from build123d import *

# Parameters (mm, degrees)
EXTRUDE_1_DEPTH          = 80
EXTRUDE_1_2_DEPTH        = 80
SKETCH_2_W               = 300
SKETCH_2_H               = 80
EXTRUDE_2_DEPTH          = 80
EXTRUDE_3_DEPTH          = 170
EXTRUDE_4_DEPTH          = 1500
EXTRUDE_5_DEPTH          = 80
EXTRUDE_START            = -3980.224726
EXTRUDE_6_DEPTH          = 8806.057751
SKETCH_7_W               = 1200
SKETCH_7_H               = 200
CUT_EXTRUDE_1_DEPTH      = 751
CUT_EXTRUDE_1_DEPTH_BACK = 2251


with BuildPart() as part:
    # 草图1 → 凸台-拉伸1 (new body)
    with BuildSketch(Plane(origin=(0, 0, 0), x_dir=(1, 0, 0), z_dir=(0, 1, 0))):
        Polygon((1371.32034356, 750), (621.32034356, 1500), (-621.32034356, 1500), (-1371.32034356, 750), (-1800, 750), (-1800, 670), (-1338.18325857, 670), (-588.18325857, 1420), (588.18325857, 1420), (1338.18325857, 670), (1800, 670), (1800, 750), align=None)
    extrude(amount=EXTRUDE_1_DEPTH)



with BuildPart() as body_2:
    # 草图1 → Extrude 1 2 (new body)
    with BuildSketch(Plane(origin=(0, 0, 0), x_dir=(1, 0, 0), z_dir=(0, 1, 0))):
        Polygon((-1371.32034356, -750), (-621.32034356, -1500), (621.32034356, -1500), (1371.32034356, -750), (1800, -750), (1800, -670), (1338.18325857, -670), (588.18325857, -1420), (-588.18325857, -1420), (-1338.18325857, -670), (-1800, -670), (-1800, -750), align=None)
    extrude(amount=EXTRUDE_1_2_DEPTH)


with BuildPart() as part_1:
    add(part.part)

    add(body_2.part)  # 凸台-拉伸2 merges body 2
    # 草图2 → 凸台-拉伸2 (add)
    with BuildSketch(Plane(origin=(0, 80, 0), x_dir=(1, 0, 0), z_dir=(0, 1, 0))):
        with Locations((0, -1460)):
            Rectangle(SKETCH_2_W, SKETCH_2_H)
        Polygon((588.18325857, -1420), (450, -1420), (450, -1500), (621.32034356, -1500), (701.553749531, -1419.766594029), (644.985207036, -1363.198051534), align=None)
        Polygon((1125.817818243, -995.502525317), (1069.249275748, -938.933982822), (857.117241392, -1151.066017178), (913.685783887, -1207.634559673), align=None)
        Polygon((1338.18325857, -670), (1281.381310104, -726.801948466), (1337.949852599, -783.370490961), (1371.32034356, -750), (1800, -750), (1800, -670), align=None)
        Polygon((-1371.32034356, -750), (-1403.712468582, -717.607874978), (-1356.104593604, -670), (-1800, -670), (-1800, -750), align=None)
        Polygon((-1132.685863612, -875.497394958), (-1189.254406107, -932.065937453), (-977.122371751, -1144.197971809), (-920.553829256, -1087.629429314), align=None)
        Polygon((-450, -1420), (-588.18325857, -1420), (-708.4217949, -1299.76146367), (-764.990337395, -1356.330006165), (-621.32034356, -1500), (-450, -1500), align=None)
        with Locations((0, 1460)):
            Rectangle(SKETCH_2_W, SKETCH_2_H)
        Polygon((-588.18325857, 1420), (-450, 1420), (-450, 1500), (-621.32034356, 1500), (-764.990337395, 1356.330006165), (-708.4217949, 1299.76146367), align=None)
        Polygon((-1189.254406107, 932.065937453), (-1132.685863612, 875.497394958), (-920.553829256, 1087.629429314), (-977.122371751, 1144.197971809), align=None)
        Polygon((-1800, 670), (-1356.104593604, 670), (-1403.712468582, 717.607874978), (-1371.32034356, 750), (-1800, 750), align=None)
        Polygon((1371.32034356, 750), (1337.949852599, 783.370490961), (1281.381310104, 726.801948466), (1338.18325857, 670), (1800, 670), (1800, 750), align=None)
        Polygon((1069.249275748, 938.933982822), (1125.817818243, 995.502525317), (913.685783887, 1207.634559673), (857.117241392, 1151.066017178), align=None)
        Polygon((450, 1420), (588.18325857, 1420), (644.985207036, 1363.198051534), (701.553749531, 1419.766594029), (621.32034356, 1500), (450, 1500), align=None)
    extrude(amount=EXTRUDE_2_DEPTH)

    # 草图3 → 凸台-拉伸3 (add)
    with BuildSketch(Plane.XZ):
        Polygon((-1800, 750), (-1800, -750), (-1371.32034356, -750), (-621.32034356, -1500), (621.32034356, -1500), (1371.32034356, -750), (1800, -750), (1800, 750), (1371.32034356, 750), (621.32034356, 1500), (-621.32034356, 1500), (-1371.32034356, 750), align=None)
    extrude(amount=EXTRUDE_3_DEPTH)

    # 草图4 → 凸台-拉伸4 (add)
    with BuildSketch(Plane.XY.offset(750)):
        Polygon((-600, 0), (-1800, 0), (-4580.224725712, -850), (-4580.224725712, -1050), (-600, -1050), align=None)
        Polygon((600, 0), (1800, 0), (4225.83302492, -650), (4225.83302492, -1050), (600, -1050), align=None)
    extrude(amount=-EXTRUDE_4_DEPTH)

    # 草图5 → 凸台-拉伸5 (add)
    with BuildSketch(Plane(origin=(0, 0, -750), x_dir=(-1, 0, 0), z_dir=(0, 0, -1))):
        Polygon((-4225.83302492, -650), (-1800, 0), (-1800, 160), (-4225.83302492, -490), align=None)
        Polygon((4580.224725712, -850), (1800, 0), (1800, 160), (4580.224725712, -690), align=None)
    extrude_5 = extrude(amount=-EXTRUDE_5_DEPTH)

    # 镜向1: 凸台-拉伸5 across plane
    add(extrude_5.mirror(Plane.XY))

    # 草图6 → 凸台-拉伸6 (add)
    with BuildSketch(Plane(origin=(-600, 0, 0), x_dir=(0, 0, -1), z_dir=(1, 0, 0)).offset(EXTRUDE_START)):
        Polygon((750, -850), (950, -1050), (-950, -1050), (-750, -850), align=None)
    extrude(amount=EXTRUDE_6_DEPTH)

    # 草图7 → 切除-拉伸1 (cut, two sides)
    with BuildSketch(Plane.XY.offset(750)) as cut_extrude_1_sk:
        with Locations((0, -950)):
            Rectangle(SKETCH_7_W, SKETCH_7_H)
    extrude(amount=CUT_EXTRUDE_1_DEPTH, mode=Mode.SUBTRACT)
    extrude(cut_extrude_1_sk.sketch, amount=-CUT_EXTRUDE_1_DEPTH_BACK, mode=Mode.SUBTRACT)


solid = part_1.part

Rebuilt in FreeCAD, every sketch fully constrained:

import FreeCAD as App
import Part
import Sketcher
from FreeCAD import Vector
Q = App.Units.Quantity

doc = App.newDocument("Part")
body = doc.addObject("PartDesign::Body", "Body")

sketch1 = body.newObject("Sketcher::SketchObject", "Sketch")
sketch1.AttachmentSupport = (doc.getObject("XZ_Plane"), [""])
sketch1.MapMode = "FlatFace"
sketch1.addGeometry(Part.LineSegment(Vector(1371.320344, -750, 0), Vector(621.320344, -1500, 0)), False)
sketch1.addGeometry(Part.LineSegment(Vector(621.320344, -1500, 0), Vector(-621.320344, -1500, 0)), False)
sketch1.addGeometry(Part.LineSegment(Vector(-621.320344, -1500, 0), Vector(-1371.320344, -750, 0)), False)
sketch1.addGeometry(Part.LineSegment(Vector(-1371.320344, -750, 0), Vector(-1800, -750, 0)), False)
sketch1.addGeometry(Part.LineSegment(Vector(-1800, -750, 0), Vector(-1800, -670, 0)), False)
sketch1.addGeometry(Part.LineSegment(Vector(-1800, -670, 0), Vector(-1338.183259, -670, 0)), False)
sketch1.addGeometry(Part.LineSegment(Vector(-1338.183259, -670, 0), Vector(-588.183259, -1420, 0)), False)
sketch1.addGeometry(Part.LineSegment(Vector(-588.183259, -1420, 0), Vector(588.183259, -1420, 0)), False)
sketch1.addGeometry(Part.LineSegment(Vector(588.183259, -1420, 0), Vector(1338.183259, -670, 0)), False)
sketch1.addGeometry(Part.LineSegment(Vector(1338.183259, -670, 0), Vector(1800, -670, 0)), False)
sketch1.addGeometry(Part.LineSegment(Vector(1800, -670, 0), Vector(1800, -750, 0)), False)
sketch1.addGeometry(Part.LineSegment(Vector(1800, -750, 0), Vector(1371.320344, -750, 0)), False)
sketch1.addConstraint(Sketcher.Constraint("Coincident", 0, 2, 1, 1))
sketch1.addConstraint(Sketcher.Constraint("Coincident", 1, 2, 2, 1))
sketch1.addConstraint(Sketcher.Constraint("Coincident", 2, 2, 3, 1))
sketch1.addConstraint(Sketcher.Constraint("Coincident", 3, 2, 4, 1))
sketch1.addConstraint(Sketcher.Constraint("Coincident", 4, 2, 5, 1))
sketch1.addConstraint(Sketcher.Constraint("Coincident", 5, 2, 6, 1))
sketch1.addConstraint(Sketcher.Constraint("Coincident", 6, 2, 7, 1))
sketch1.addConstraint(Sketcher.Constraint("Coincident", 7, 2, 8, 1))
sketch1.addConstraint(Sketcher.Constraint("Coincident", 8, 2, 9, 1))
sketch1.addConstraint(Sketcher.Constraint("Coincident", 9, 2, 10, 1))
sketch1.addConstraint(Sketcher.Constraint("Coincident", 10, 2, 11, 1))
sketch1.addConstraint(Sketcher.Constraint("Coincident", 11, 2, 0, 1))
sketch1.addConstraint(Sketcher.Constraint("Horizontal", 1))
sketch1.addConstraint(Sketcher.Constraint("Horizontal", 3))
sketch1.addConstraint(Sketcher.Constraint("Vertical", 4))
sketch1.addConstraint(Sketcher.Constraint("Horizontal", 5))
sketch1.addConstraint(Sketcher.Constraint("Horizontal", 7))
sketch1.addConstraint(Sketcher.Constraint("Horizontal", 9))
sketch1.addConstraint(Sketcher.Constraint("Vertical", 10))
sketch1.addConstraint(Sketcher.Constraint("Horizontal", 11))
sketch1.addConstraint(Sketcher.Constraint("Symmetric", 5, 2, 8, 2, -2))
sketch1.addConstraint(Sketcher.Constraint("Symmetric", 3, 2, 10, 2, -2))
sketch1.addConstraint(Sketcher.Constraint("Perpendicular", 0, 2))
sketch1.addConstraint(Sketcher.Constraint("Parallel", 2, 6))
sketch1.addConstraint(Sketcher.Constraint("Perpendicular", 6, 8))
sketch1.addConstraint(Sketcher.Constraint("Equal", 3, 11))
sketch1.addConstraint(Sketcher.Constraint("Equal", 0, 2))
sketch1.addConstraint(Sketcher.Constraint("Equal", 2, 6))
sketch1.addConstraint(Sketcher.Constraint("DistanceY", 4, 1, 4, 2, Q("80 mm")))
sketch1.addConstraint(Sketcher.Constraint("DistanceY", 0, 2, -1, 1, Q("1500 mm")))
sketch1.addConstraint(Sketcher.Constraint("DistanceY", 2, 2, -1, 1, Q("750 mm")))
sketch1.addConstraint(Sketcher.Constraint("DistanceX", 3, 2, -1, 1, Q("1800 mm")))
sketch1.addConstraint(Sketcher.Constraint("DistanceX", 5, 1, 5, 2, Q("461.816741 mm")))
sketch1.addConstraint(Sketcher.Constraint("DistanceX", 1, 2, 1, 1, Q("1242.640687 mm")))
pad1 = body.newObject("PartDesign::Pad", "Pad")
pad1.Profile = sketch1
pad1.Length = 80
pad1.Reversed = True
body2 = doc.addObject("PartDesign::Body", "Body001")

sketch2 = body2.newObject("Sketcher::SketchObject", "Sketch001")
sketch2.AttachmentSupport = (doc.getObject("XZ_Plane001"), [""])
sketch2.MapMode = "FlatFace"
sketch2.addGeometry(Part.LineSegment(Vector(-1371.320344, 750, 0), Vector(-621.320344, 1500, 0)), False)
sketch2.addGeometry(Part.LineSegment(Vector(-621.320344, 1500, 0), Vector(621.320344, 1500, 0)), False)
sketch2.addGeometry(Part.LineSegment(Vector(621.320344, 1500, 0), Vector(1371.320344, 750, 0)), False)
sketch2.addGeometry(Part.LineSegment(Vector(1371.320344, 750, 0), Vector(1800, 750, 0)), False)
sketch2.addGeometry(Part.LineSegment(Vector(1800, 750, 0), Vector(1800, 670, 0)), False)
sketch2.addGeometry(Part.LineSegment(Vector(1800, 670, 0), Vector(1338.183259, 670, 0)), False)
sketch2.addGeometry(Part.LineSegment(Vector(1338.183259, 670, 0), Vector(588.183259, 1420, 0)), False)
sketch2.addGeometry(Part.LineSegment(Vector(588.183259, 1420, 0), Vector(-588.183259, 1420, 0)), False)
sketch2.addGeometry(Part.LineSegment(Vector(-588.183259, 1420, 0), Vector(-1338.183259, 670, 0)), False)
sketch2.addGeometry(Part.LineSegment(Vector(-1338.183259, 670, 0), Vector(-1800, 670, 0)), False)
sketch2.addGeometry(Part.LineSegment(Vector(-1800, 670, 0), Vector(-1800, 750, 0)), False)
sketch2.addGeometry(Part.LineSegment(Vector(-1800, 750, 0), Vector(-1371.320344, 750, 0)), False)
sketch2.addConstraint(Sketcher.Constraint("Coincident", 0, 2, 1, 1))
sketch2.addConstraint(Sketcher.Constraint("Coincident", 1, 2, 2, 1))
sketch2.addConstraint(Sketcher.Constraint("Coincident", 2, 2, 3, 1))
sketch2.addConstraint(Sketcher.Constraint("Coincident", 3, 2, 4, 1))
sketch2.addConstraint(Sketcher.Constraint("Coincident", 4, 2, 5, 1))
sketch2.addConstraint(Sketcher.Constraint("Coincident", 5, 2, 6, 1))
sketch2.addConstraint(Sketcher.Constraint("Coincident", 6, 2, 7, 1))
sketch2.addConstraint(Sketcher.Constraint("Coincident", 7, 2, 8, 1))
sketch2.addConstraint(Sketcher.Constraint("Coincident", 8, 2, 9, 1))
sketch2.addConstraint(Sketcher.Constraint("Coincident", 9, 2, 10, 1))
sketch2.addConstraint(Sketcher.Constraint("Coincident", 10, 2, 11, 1))
sketch2.addConstraint(Sketcher.Constraint("Coincident", 11, 2, 0, 1))
sketch2.addConstraint(Sketcher.Constraint("Horizontal", 1))
sketch2.addConstraint(Sketcher.Constraint("Horizontal", 3))
sketch2.addConstraint(Sketcher.Constraint("Vertical", 4))
sketch2.addConstraint(Sketcher.Constraint("Horizontal", 5))
sketch2.addConstraint(Sketcher.Constraint("Horizontal", 7))
sketch2.addConstraint(Sketcher.Constraint("Horizontal", 9))
sketch2.addConstraint(Sketcher.Constraint("Vertical", 10))
sketch2.addConstraint(Sketcher.Constraint("Horizontal", 11))
sketch2.addConstraint(Sketcher.Constraint("Symmetric", 5, 2, 8, 2, -2))
sketch2.addConstraint(Sketcher.Constraint("Symmetric", 3, 2, 10, 2, -2))
sketch2.addConstraint(Sketcher.Constraint("Perpendicular", 0, 2))
sketch2.addConstraint(Sketcher.Constraint("Parallel", 2, 6))
sketch2.addConstraint(Sketcher.Constraint("Perpendicular", 6, 8))
sketch2.addConstraint(Sketcher.Constraint("Equal", 3, 11))
sketch2.addConstraint(Sketcher.Constraint("Equal", 0, 2))
sketch2.addConstraint(Sketcher.Constraint("Equal", 2, 6))
sketch2.addConstraint(Sketcher.Constraint("DistanceY", 4, 2, 4, 1, Q("80 mm")))
sketch2.addConstraint(Sketcher.Constraint("DistanceY", -1, 1, 0, 2, Q("1500 mm")))
sketch2.addConstraint(Sketcher.Constraint("DistanceY", -1, 1, 2, 2, Q("750 mm")))
sketch2.addConstraint(Sketcher.Constraint("DistanceX", -1, 1, 3, 2, Q("1800 mm")))
sketch2.addConstraint(Sketcher.Constraint("DistanceX", 5, 2, 5, 1, Q("461.816741 mm")))
sketch2.addConstraint(Sketcher.Constraint("DistanceX", 1, 1, 1, 2, Q("1242.640687 mm")))
pad2 = body2.newObject("PartDesign::Pad", "Pad001")
pad2.Profile = sketch2
pad2.Length = 80
pad2.Reversed = True
body.AllowCompound = True
doc.recompute()

boolean = body.newObject("PartDesign::Boolean", "Boolean")
boolean.Type = "Fuse"
boolean.addObjects([body2])

sketch3 = body.newObject("Sketcher::SketchObject", "Sketch002")
sketch3.AttachmentSupport = (doc.getObject("XZ_Plane"), [""])
sketch3.MapMode = "FlatFace"
sketch3.AttachmentOffset = App.Placement(Vector(0, 0, -80), App.Rotation())
sketch3.addGeometry(Part.LineSegment(Vector(-150, 1420, 0), Vector(-150, 1500, 0)), False)
sketch3.addGeometry(Part.LineSegment(Vector(-150, 1500, 0), Vector(150, 1500, 0)), False)
sketch3.addGeometry(Part.LineSegment(Vector(150, 1500, 0), Vector(150, 1420, 0)), False)
sketch3.addGeometry(Part.LineSegment(Vector(150, 1420, 0), Vector(-150, 1420, 0)), False)
sketch3.addGeometry(Part.LineSegment(Vector(588.183259, 1420, 0), Vector(450, 1420, 0)), False)
sketch3.addGeometry(Part.LineSegment(Vector(450, 1420, 0), Vector(450, 1500, 0)), False)
sketch3.addGeometry(Part.LineSegment(Vector(450, 1500, 0), Vector(621.320344, 1500, 0)), False)
sketch3.addGeometry(Part.LineSegment(Vector(621.320344, 1500, 0), Vector(701.55375, 1419.766594, 0)), False)
sketch3.addGeometry(Part.LineSegment(Vector(701.55375, 1419.766594, 0), Vector(644.985207, 1363.198052, 0)), False)
sketch3.addGeometry(Part.LineSegment(Vector(644.985207, 1363.198052, 0), Vector(588.183259, 1420, 0)), False)
sketch3.addGeometry(Part.LineSegment(Vector(1125.817818, 995.502525, 0), Vector(1069.249276, 938.933983, 0)), False)
sketch3.addGeometry(Part.LineSegment(Vector(1069.249276, 938.933983, 0), Vector(857.117241, 1151.066017, 0)), False)
sketch3.addGeometry(Part.LineSegment(Vector(857.117241, 1151.066017, 0), Vector(913.685784, 1207.63456, 0)), False)
sketch3.addGeometry(Part.LineSegment(Vector(913.685784, 1207.63456, 0), Vector(1125.817818, 995.502525, 0)), False)
sketch3.addGeometry(Part.LineSegment(Vector(1338.183259, 670, 0), Vector(1281.38131, 726.801948, 0)), False)
sketch3.addGeometry(Part.LineSegment(Vector(1281.38131, 726.801948, 0), Vector(1337.949853, 783.370491, 0)), False)
sketch3.addGeometry(Part.LineSegment(Vector(1337.949853, 783.370491, 0), Vector(1371.320344, 750, 0)), False)
sketch3.addGeometry(Part.LineSegment(Vector(1371.320344, 750, 0), Vector(1800, 750, 0)), False)
sketch3.addGeometry(Part.LineSegment(Vector(1800, 750, 0), Vector(1800, 670, 0)), False)
sketch3.addGeometry(Part.LineSegment(Vector(1800, 670, 0), Vector(1338.183259, 670, 0)), False)
sketch3.addGeometry(Part.LineSegment(Vector(-1371.320344, 750, 0), Vector(-1403.712469, 717.607875, 0)), False)
sketch3.addGeometry(Part.LineSegment(Vector(-1403.712469, 717.607875, 0), Vector(-1356.104594, 670, 0)), False)
sketch3.addGeometry(Part.LineSegment(Vector(-1356.104594, 670, 0), Vector(-1800, 670, 0)), False)
sketch3.addGeometry(Part.LineSegment(Vector(-1800, 670, 0), Vector(-1800, 750, 0)), False)
sketch3.addGeometry(Part.LineSegment(Vector(-1800, 750, 0), Vector(-1371.320344, 750, 0)), False)
sketch3.addGeometry(Part.LineSegment(Vector(-1132.685864, 875.497395, 0), Vector(-1189.254406, 932.065937, 0)), False)
sketch3.addGeometry(Part.LineSegment(Vector(-1189.254406, 932.065937, 0), Vector(-977.122372, 1144.197972, 0)), False)
sketch3.addGeometry(Part.LineSegment(Vector(-977.122372, 1144.197972, 0), Vector(-920.553829, 1087.629429, 0)), False)
sketch3.addGeometry(Part.LineSegment(Vector(-920.553829, 1087.629429, 0), Vector(-1132.685864, 875.497395, 0)), False)
sketch3.addGeometry(Part.LineSegment(Vector(-450, 1420, 0), Vector(-588.183259, 1420, 0)), False)
sketch3.addGeometry(Part.LineSegment(Vector(-588.183259, 1420, 0), Vector(-708.421795, 1299.761464, 0)), False)
sketch3.addGeometry(Part.LineSegment(Vector(-708.421795, 1299.761464, 0), Vector(-764.990337, 1356.330006, 0)), False)
sketch3.addGeometry(Part.LineSegment(Vector(-764.990337, 1356.330006, 0), Vector(-621.320344, 1500, 0)), False)
sketch3.addGeometry(Part.LineSegment(Vector(-621.320344, 1500, 0), Vector(-450, 1500, 0)), False)
sketch3.addGeometry(Part.LineSegment(Vector(-450, 1500, 0), Vector(-450, 1420, 0)), False)
sketch3.addGeometry(Part.LineSegment(Vector(-150, -1500, 0), Vector(-150, -1420, 0)), False)
sketch3.addGeometry(Part.LineSegment(Vector(-150, -1420, 0), Vector(150, -1420, 0)), False)
sketch3.addGeometry(Part.LineSegment(Vector(150, -1420, 0), Vector(150, -1500, 0)), False)
sketch3.addGeometry(Part.LineSegment(Vector(150, -1500, 0), Vector(-150, -1500, 0)), False)
sketch3.addGeometry(Part.LineSegment(Vector(-588.183259, -1420, 0), Vector(-450, -1420, 0)), False)
sketch3.addGeometry(Part.LineSegment(Vector(-450, -1420, 0), Vector(-450, -1500, 0)), False)
sketch3.addGeometry(Part.LineSegment(Vector(-450, -1500, 0), Vector(-621.320344, -1500, 0)), False)
sketch3.addGeometry(Part.LineSegment(Vector(-621.320344, -1500, 0), Vector(-764.990337, -1356.330006, 0)), False)
sketch3.addGeometry(Part.LineSegment(Vector(-764.990337, -1356.330006, 0), Vector(-708.421795, -1299.761464, 0)), False)
sketch3.addGeometry(Part.LineSegment(Vector(-708.421795, -1299.761464, 0), Vector(-588.183259, -1420, 0)), False)
sketch3.addGeometry(Part.LineSegment(Vector(-1189.254406, -932.065937, 0), Vector(-1132.685864, -875.497395, 0)), False)
sketch3.addGeometry(Part.LineSegment(Vector(-1132.685864, -875.497395, 0), Vector(-920.553829, -1087.629429, 0)), False)
sketch3.addGeometry(Part.LineSegment(Vector(-920.553829, -1087.629429, 0), Vector(-977.122372, -1144.197972, 0)), False)
sketch3.addGeometry(Part.LineSegment(Vector(-977.122372, -1144.197972, 0), Vector(-1189.254406, -932.065937, 0)), False)
sketch3.addGeometry(Part.LineSegment(Vector(-1800, -670, 0), Vector(-1356.104594, -670, 0)), False)
sketch3.addGeometry(Part.LineSegment(Vector(-1356.104594, -670, 0), Vector(-1403.712469, -717.607875, 0)), False)
sketch3.addGeometry(Part.LineSegment(Vector(-1403.712469, -717.607875, 0), Vector(-1371.320344, -750, 0)), False)
sketch3.addGeometry(Part.LineSegment(Vector(-1371.320344, -750, 0), Vector(-1800, -750, 0)), False)
sketch3.addGeometry(Part.LineSegment(Vector(-1800, -750, 0), Vector(-1800, -670, 0)), False)
sketch3.addGeometry(Part.LineSegment(Vector(1371.320344, -750, 0), Vector(1337.949853, -783.370491, 0)), False)
sketch3.addGeometry(Part.LineSegment(Vector(1337.949853, -783.370491, 0), Vector(1281.38131, -726.801948, 0)), False)
sketch3.addGeometry(Part.LineSegment(Vector(1281.38131, -726.801948, 0), Vector(1338.183259, -670, 0)), False)
sketch3.addGeometry(Part.LineSegment(Vector(1338.183259, -670, 0), Vector(1800, -670, 0)), False)
sketch3.addGeometry(Part.LineSegment(Vector(1800, -670, 0), Vector(1800, -750, 0)), False)
sketch3.addGeometry(Part.LineSegment(Vector(1800, -750, 0), Vector(1371.320344, -750, 0)), False)
sketch3.addGeometry(Part.LineSegment(Vector(1069.249276, -938.933983, 0), Vector(1125.817818, -995.502525, 0)), False)
sketch3.addGeometry(Part.LineSegment(Vector(1125.817818, -995.502525, 0), Vector(913.685784, -1207.63456, 0)), False)
sketch3.addGeometry(Part.LineSegment(Vector(913.685784, -1207.63456, 0), Vector(857.117241, -1151.066017, 0)), False)
sketch3.addGeometry(Part.LineSegment(Vector(857.117241, -1151.066017, 0), Vector(1069.249276, -938.933983, 0)), False)
sketch3.addGeometry(Part.LineSegment(Vector(450, -1420, 0), Vector(588.183259, -1420, 0)), False)
sketch3.addGeometry(Part.LineSegment(Vector(588.183259, -1420, 0), Vector(644.985207, -1363.198052, 0)), False)
sketch3.addGeometry(Part.LineSegment(Vector(644.985207, -1363.198052, 0), Vector(701.55375, -1419.766594, 0)), False)
sketch3.addGeometry(Part.LineSegment(Vector(701.55375, -1419.766594, 0), Vector(621.320344, -1500, 0)), False)
sketch3.addGeometry(Part.LineSegment(Vector(621.320344, -1500, 0), Vector(450, -1500, 0)), False)
sketch3.addGeometry(Part.LineSegment(Vector(450, -1500, 0), Vector(450, -1420, 0)), False)
sketch3.addConstraint(Sketcher.Constraint("Coincident", 0, 2, 1, 1))
sketch3.addConstraint(Sketcher.Constraint("Coincident", 1, 2, 2, 1))
sketch3.addConstraint(Sketcher.Constraint("Coincident", 2, 2, 3, 1))
sketch3.addConstraint(Sketcher.Constraint("Coincident", 3, 2, 0, 1))
sketch3.addConstraint(Sketcher.Constraint("Coincident", 4, 2, 5, 1))
sketch3.addConstraint(Sketcher.Constraint("Coincident", 5, 2, 6, 1))
sketch3.addConstraint(Sketcher.Constraint("Coincident", 6, 2, 7, 1))
sketch3.addConstraint(Sketcher.Constraint("Coincident", 7, 2, 8, 1))
sketch3.addConstraint(Sketcher.Constraint("Coincident", 8, 2, 9, 1))
sketch3.addConstraint(Sketcher.Constraint("Coincident", 9, 2, 4, 1))
sketch3.addConstraint(Sketcher.Constraint("Coincident", 10, 2, 11, 1))
sketch3.addConstraint(Sketcher.Constraint("Coincident", 11, 2, 12, 1))
sketch3.addConstraint(Sketcher.Constraint("Coincident", 12, 2, 13, 1))
sketch3.addConstraint(Sketcher.Constraint("Coincident", 13, 2, 10, 1))
sketch3.addConstraint(Sketcher.Constraint("Coincident", 14, 2, 15, 1))
sketch3.addConstraint(Sketcher.Constraint("Coincident", 15, 2, 16, 1))
sketch3.addConstraint(Sketcher.Constraint("Coincident", 16, 2, 17, 1))
sketch3.addConstraint(Sketcher.Constraint("Coincident", 17, 2, 18, 1))
sketch3.addConstraint(Sketcher.Constraint("Coincident", 18, 2, 19, 1))
sketch3.addConstraint(Sketcher.Constraint("Coincident", 19, 2, 14, 1))
sketch3.addConstraint(Sketcher.Constraint("Coincident", 20, 2, 21, 1))
sketch3.addConstraint(Sketcher.Constraint("Coincident", 21, 2, 22, 1))
sketch3.addConstraint(Sketcher.Constraint("Coincident", 22, 2, 23, 1))
sketch3.addConstraint(Sketcher.Constraint("Coincident", 23, 2, 24, 1))
sketch3.addConstraint(Sketcher.Constraint("Coincident", 24, 2, 20, 1))
sketch3.addConstraint(Sketcher.Constraint("Coincident", 25, 2, 26, 1))
sketch3.addConstraint(Sketcher.Constraint("Coincident", 26, 2, 27, 1))
sketch3.addConstraint(Sketcher.Constraint("Coincident", 27, 2, 28, 1))
sketch3.addConstraint(Sketcher.Constraint("Coincident", 28, 2, 25, 1))
sketch3.addConstraint(Sketcher.Constraint("Coincident", 29, 2, 30, 1))
sketch3.addConstraint(Sketcher.Constraint("Coincident", 30, 2, 31, 1))
sketch3.addConstraint(Sketcher.Constraint("Coincident", 31, 2, 32, 1))
sketch3.addConstraint(Sketcher.Constraint("Coincident", 32, 2, 33, 1))
sketch3.addConstraint(Sketcher.Constraint("Coincident", 33, 2, 34, 1))
sketch3.addConstraint(Sketcher.Constraint("Coincident", 34, 2, 29, 1))
sketch3.addConstraint(Sketcher.Constraint("Coincident", 35, 2, 36, 1))
sketch3.addConstraint(Sketcher.Constraint("Coincident", 36, 2, 37, 1))
sketch3.addConstraint(Sketcher.Constraint("Coincident", 37, 2, 38, 1))
sketch3.addConstraint(Sketcher.Constraint("Coincident", 38, 2, 35, 1))
sketch3.addConstraint(Sketcher.Constraint("Coincident", 39, 2, 40, 1))
sketch3.addConstraint(Sketcher.Constraint("Coincident", 40, 2, 41, 1))
sketch3.addConstraint(Sketcher.Constraint("Coincident", 41, 2, 42, 1))
sketch3.addConstraint(Sketcher.Constraint("Coincident", 42, 2, 43, 1))
sketch3.addConstraint(Sketcher.Constraint("Coincident", 43, 2, 44, 1))
sketch3.addConstraint(Sketcher.Constraint("Coincident", 44, 2, 39, 1))
sketch3.addConstraint(Sketcher.Constraint("Coincident", 45, 2, 46, 1))
sketch3.addConstraint(Sketcher.Constraint("Coincident", 46, 2, 47, 1))
sketch3.addConstraint(Sketcher.Constraint("Coincident", 47, 2, 48, 1))
sketch3.addConstraint(Sketcher.Constraint("Coincident", 48, 2, 45, 1))
sketch3.addConstraint(Sketcher.Constraint("Coincident", 49, 2, 50, 1))
sketch3.addConstraint(Sketcher.Constraint("Coincident", 50, 2, 51, 1))
sketch3.addConstraint(Sketcher.Constraint("Coincident", 51, 2, 52, 1))
sketch3.addConstraint(Sketcher.Constraint("Coincident", 52, 2, 53, 1))
sketch3.addConstraint(Sketcher.Constraint("Coincident", 53, 2, 49, 1))
sketch3.addConstraint(Sketcher.Constraint("Coincident", 54, 2, 55, 1))
sketch3.addConstraint(Sketcher.Constraint("Coincident", 55, 2, 56, 1))
sketch3.addConstraint(Sketcher.Constraint("Coincident", 56, 2, 57, 1))
sketch3.addConstraint(Sketcher.Constraint("Coincident", 57, 2, 58, 1))
sketch3.addConstraint(Sketcher.Constraint("Coincident", 58, 2, 59, 1))
sketch3.addConstraint(Sketcher.Constraint("Coincident", 59, 2, 54, 1))
sketch3.addConstraint(Sketcher.Constraint("Coincident", 60, 2, 61, 1))
sketch3.addConstraint(Sketcher.Constraint("Coincident", 61, 2, 62, 1))
sketch3.addConstraint(Sketcher.Constraint("Coincident", 62, 2, 63, 1))
sketch3.addConstraint(Sketcher.Constraint("Coincident", 63, 2, 60, 1))
sketch3.addConstraint(Sketcher.Constraint("Coincident", 64, 2, 65, 1))
sketch3.addConstraint(Sketcher.Constraint("Coincident", 65, 2, 66, 1))
sketch3.addConstraint(Sketcher.Constraint("Coincident", 66, 2, 67, 1))
sketch3.addConstraint(Sketcher.Constraint("Coincident", 67, 2, 68, 1))
sketch3.addConstraint(Sketcher.Constraint("Coincident", 68, 2, 69, 1))
sketch3.addConstraint(Sketcher.Constraint("Coincident", 69, 2, 64, 1))
sketch3.addConstraint(Sketcher.Constraint("Vertical", 0))
sketch3.addConstraint(Sketcher.Constraint("Horizontal", 1))
sketch3.addConstraint(Sketcher.Constraint("Vertical", 2))
sketch3.addConstraint(Sketcher.Constraint("Horizontal", 3))
sketch3.addConstraint(Sketcher.Constraint("Horizontal", 4))
sketch3.addConstraint(Sketcher.Constraint("Vertical", 5))
sketch3.addConstraint(Sketcher.Constraint("Horizontal", 6))
sketch3.addConstraint(Sketcher.Constraint("Horizontal", 17))
sketch3.addConstraint(Sketcher.Constraint("Vertical", 18))
sketch3.addConstraint(Sketcher.Constraint("Horizontal", 19))
sketch3.addConstraint(Sketcher.Constraint("Horizontal", 22))
sketch3.addConstraint(Sketcher.Constraint("Vertical", 23))
sketch3.addConstraint(Sketcher.Constraint("Horizontal", 24))
sketch3.addConstraint(Sketcher.Constraint("Horizontal", 29))
sketch3.addConstraint(Sketcher.Constraint("Horizontal", 33))
sketch3.addConstraint(Sketcher.Constraint("Vertical", 34))
sketch3.addConstraint(Sketcher.Constraint("Vertical", 35))
sketch3.addConstraint(Sketcher.Constraint("Horizontal", 36))
sketch3.addConstraint(Sketcher.Constraint("Vertical", 37))
sketch3.addConstraint(Sketcher.Constraint("Horizontal", 38))
sketch3.addConstraint(Sketcher.Constraint("Horizontal", 39))
sketch3.addConstraint(Sketcher.Constraint("Vertical", 40))
sketch3.addConstraint(Sketcher.Constraint("Horizontal", 41))
sketch3.addConstraint(Sketcher.Constraint("Horizontal", 49))
sketch3.addConstraint(Sketcher.Constraint("Horizontal", 52))
sketch3.addConstraint(Sketcher.Constraint("Vertical", 53))
sketch3.addConstraint(Sketcher.Constraint("Horizontal", 57))
sketch3.addConstraint(Sketcher.Constraint("Vertical", 58))
sketch3.addConstraint(Sketcher.Constraint("Horizontal", 59))
sketch3.addConstraint(Sketcher.Constraint("Horizontal", 64))
sketch3.addConstraint(Sketcher.Constraint("Horizontal", 68))
sketch3.addConstraint(Sketcher.Constraint("Vertical", 69))
sketch3.addConstraint(Sketcher.Constraint("Symmetric", 2, 2, 35, 2, -1, 1))
sketch3.addConstraint(Sketcher.Constraint("Symmetric", 0, 2, 37, 2, -1, 1))
sketch3.addConstraint(Sketcher.Constraint("Symmetric", 4, 2, 39, 2, -1, 1))
sketch3.addConstraint(Sketcher.Constraint("Symmetric", 6, 2, 41, 2, -1, 1))
sketch3.addConstraint(Sketcher.Constraint("Symmetric", 16, 2, 51, 2, -1, 1))
sketch3.addConstraint(Sketcher.Constraint("Symmetric", 18, 2, 53, 2, -1, 1))
sketch3.addConstraint(Sketcher.Constraint("Symmetric", 22, 2, 57, 2, -1, 1))
sketch3.addConstraint(Sketcher.Constraint("Symmetric", 24, 2, 59, 2, -1, 1))
sketch3.addConstraint(Sketcher.Constraint("Symmetric", 29, 2, 64, 2, -1, 1))
sketch3.addConstraint(Sketcher.Constraint("Symmetric", 32, 2, 67, 2, -1, 1))
sketch3.addConstraint(Sketcher.Constraint("Symmetric", 18, 2, 22, 2, -2))
sketch3.addConstraint(Sketcher.Constraint("Symmetric", 16, 2, 24, 2, -2))
sketch3.addConstraint(Sketcher.Constraint("Symmetric", 9, 2, 29, 2, -2))
sketch3.addConstraint(Sketcher.Constraint("Symmetric", 6, 2, 32, 2, -2))
sketch3.addConstraint(Sketcher.Constraint("Symmetric", 31, 2, 42, 2, -1))
sketch3.addConstraint(Sketcher.Constraint("Symmetric", 30, 2, 43, 2, -1))
sketch3.addConstraint(Sketcher.Constraint("Symmetric", 28, 2, 45, 2, -1))
sketch3.addConstraint(Sketcher.Constraint("Symmetric", 27, 2, 46, 2, -1))
sketch3.addConstraint(Sketcher.Constraint("Symmetric", 26, 2, 47, 2, -1))
sketch3.addConstraint(Sketcher.Constraint("Symmetric", 25, 2, 48, 2, -1))
sketch3.addConstraint(Sketcher.Constraint("Symmetric", 20, 2, 50, 2, -1))
sketch3.addConstraint(Sketcher.Constraint("Symmetric", 15, 2, 54, 2, -1))
sketch3.addConstraint(Sketcher.Constraint("Symmetric", 14, 2, 55, 2, -1))
sketch3.addConstraint(Sketcher.Constraint("Symmetric", 13, 2, 60, 2, -1))
sketch3.addConstraint(Sketcher.Constraint("Symmetric", 12, 2, 61, 2, -1))
sketch3.addConstraint(Sketcher.Constraint("Symmetric", 11, 2, 62, 2, -1))
sketch3.addConstraint(Sketcher.Constraint("Symmetric", 10, 2, 63, 2, -1))
sketch3.addConstraint(Sketcher.Constraint("Symmetric", 8, 2, 65, 2, -1))
sketch3.addConstraint(Sketcher.Constraint("Symmetric", 7, 2, 66, 2, -1))
sketch3.addConstraint(Sketcher.Constraint("Perpendicular", 7, 8))
sketch3.addConstraint(Sketcher.Constraint("Perpendicular", 8, 9))
sketch3.addConstraint(Sketcher.Constraint("Perpendicular", 9, 10))
sketch3.addConstraint(Sketcher.Constraint("Perpendicular", 10, 11))
sketch3.addConstraint(Sketcher.Constraint("Perpendicular", 11, 12))
sketch3.addConstraint(Sketcher.Constraint("Perpendicular", 12, 13))
sketch3.addConstraint(Sketcher.Constraint("Parallel", 13, 14))
sketch3.addConstraint(Sketcher.Constraint("Perpendicular", 14, 15))
sketch3.addConstraint(Sketcher.Constraint("Perpendicular", 15, 16))
sketch3.addConstraint(Sketcher.Constraint("Perpendicular", 16, 20))
sketch3.addConstraint(Sketcher.Constraint("Perpendicular", 20, 21))
sketch3.addConstraint(Sketcher.Constraint("Parallel", 21, 25))
sketch3.addConstraint(Sketcher.Constraint("Perpendicular", 25, 26))
sketch3.addConstraint(Sketcher.Constraint("Perpendicular", 26, 27))
sketch3.addConstraint(Sketcher.Constraint("Perpendicular", 27, 28))
sketch3.addConstraint(Sketcher.Constraint("Parallel", 28, 30))
sketch3.addConstraint(Sketcher.Constraint("Perpendicular", 30, 31))
sketch3.addConstraint(Sketcher.Constraint("Perpendicular", 31, 32))
sketch3.addConstraint(Sketcher.Constraint("Perpendicular", 32, 42))
sketch3.addConstraint(Sketcher.Constraint("Perpendicular", 43, 44))
sketch3.addConstraint(Sketcher.Constraint("Perpendicular", 48, 50))
sketch3.addConstraint(Sketcher.Constraint("Perpendicular", 55, 56))
sketch3.addConstraint(Sketcher.Constraint("Horizontal", 3, 2, 4, 2))
sketch3.addConstraint(Sketcher.Constraint("Horizontal", 1, 2, 5, 2))
sketch3.addConstraint(Sketcher.Constraint("Vertical", 3, 2, 35, 2))
sketch3.addConstraint(Sketcher.Constraint("Vertical", 34, 2, 39, 2))
sketch3.addConstraint(Sketcher.Constraint("Vertical", 5, 2, 68, 2))
sketch3.addConstraint(Sketcher.Constraint("Equal", 5, 18))
sketch3.addConstraint(Sketcher.Constraint("Equal", 8, 10))
sketch3.addConstraint(Sketcher.Constraint("Equal", 9, 14))
sketch3.addConstraint(Sketcher.Constraint("Equal", 12, 15))
sketch3.addConstraint(Sketcher.Constraint("Equal", 15, 25))
sketch3.addConstraint(Sketcher.Constraint("Equal", 13, 26))
sketch3.addConstraint(Sketcher.Constraint("DistanceX", 1, 1, 1, 2, Q("300 mm")))
sketch3.addConstraint(Sketcher.Constraint("DistanceY", 0, 1, 0, 2, Q("80 mm")))
sketch3.addConstraint(Sketcher.Constraint("Distance", 8, Q("80 mm")))
sketch3.addConstraint(Sketcher.Constraint("Distance", 11, Q("300 mm")))
sketch3.addConstraint(Sketcher.Constraint("DistanceY", -1, 1, 0, 2, Q("1500 mm")))
sketch3.addConstraint(Sketcher.Constraint("DistanceX", -1, 1, 4, 2, Q("450 mm")))
sketch3.addConstraint(Sketcher.Constraint("DistanceY", -1, 1, 16, 2, Q("750 mm")))
sketch3.addConstraint(Sketcher.Constraint("DistanceX", -1, 1, 17, 2, Q("1800 mm")))
sketch3.addConstraint(Sketcher.Constraint("Distance", 16, Q("47.193001 mm")))
sketch3.addConstraint(Sketcher.Constraint("DistanceX", 4, 2, 4, 1, Q("138.183259 mm")))
sketch3.addConstraint(Sketcher.Constraint("DistanceX", 19, 2, 19, 1, Q("461.816741 mm")))
sketch3.addConstraint(Sketcher.Constraint("Distance", 30, Q("170.042969 mm")))
sketch3.addConstraint(Sketcher.Constraint("DistanceX", 22, 2, 22, 1, Q("443.895406 mm")))
sketch3.addConstraint(Sketcher.Constraint("DistanceX", -1, 1, 11, 2, Q("857.117241 mm")))
sketch3.addConstraint(Sketcher.Constraint("DistanceY", -1, 1, 12, 2, Q("1207.63456 mm")))
sketch3.addConstraint(Sketcher.Constraint("DistanceX", 26, 2, -1, 1, Q("977.122372 mm")))
sketch3.addConstraint(Sketcher.Constraint("DistanceY", -1, 1, 26, 2, Q("1144.197972 mm")))
pad3 = body.newObject("PartDesign::Pad", "Pad002")
pad3.Profile = sketch3
pad3.Length = 80
pad3.Reversed = True

sketch4 = body.newObject("Sketcher::SketchObject", "Sketch003")
sketch4.AttachmentSupport = (doc.getObject("XZ_Plane"), [""])
sketch4.MapMode = "FlatFace"
sketch4.addGeometry(Part.LineSegment(Vector(-1800, 750, 0), Vector(-1800, -750, 0)), False)
sketch4.addGeometry(Part.LineSegment(Vector(-1800, -750, 0), Vector(-1371.320344, -750, 0)), False)
sketch4.addGeometry(Part.LineSegment(Vector(-1371.320344, -750, 0), Vector(-621.320344, -1500, 0)), False)
sketch4.addGeometry(Part.LineSegment(Vector(-621.320344, -1500, 0), Vector(621.320344, -1500, 0)), False)
sketch4.addGeometry(Part.LineSegment(Vector(621.320344, -1500, 0), Vector(1371.320344, -750, 0)), False)
sketch4.addGeometry(Part.LineSegment(Vector(1371.320344, -750, 0), Vector(1800, -750, 0)), False)
sketch4.addGeometry(Part.LineSegment(Vector(1800, -750, 0), Vector(1800, 750, 0)), False)
sketch4.addGeometry(Part.LineSegment(Vector(1800, 750, 0), Vector(1371.320344, 750, 0)), False)
sketch4.addGeometry(Part.LineSegment(Vector(1371.320344, 750, 0), Vector(621.320344, 1500, 0)), False)
sketch4.addGeometry(Part.LineSegment(Vector(621.320344, 1500, 0), Vector(-621.320344, 1500, 0)), False)
sketch4.addGeometry(Part.LineSegment(Vector(-621.320344, 1500, 0), Vector(-1371.320344, 750, 0)), False)
sketch4.addGeometry(Part.LineSegment(Vector(-1371.320344, 750, 0), Vector(-1800, 750, 0)), False)
sketch4.addConstraint(Sketcher.Constraint("Coincident", 0, 2, 1, 1))
sketch4.addConstraint(Sketcher.Constraint("Coincident", 1, 2, 2, 1))
sketch4.addConstraint(Sketcher.Constraint("Coincident", 2, 2, 3, 1))
sketch4.addConstraint(Sketcher.Constraint("Coincident", 3, 2, 4, 1))
sketch4.addConstraint(Sketcher.Constraint("Coincident", 4, 2, 5, 1))
sketch4.addConstraint(Sketcher.Constraint("Coincident", 5, 2, 6, 1))
sketch4.addConstraint(Sketcher.Constraint("Coincident", 6, 2, 7, 1))
sketch4.addConstraint(Sketcher.Constraint("Coincident", 7, 2, 8, 1))
sketch4.addConstraint(Sketcher.Constraint("Coincident", 8, 2, 9, 1))
sketch4.addConstraint(Sketcher.Constraint("Coincident", 9, 2, 10, 1))
sketch4.addConstraint(Sketcher.Constraint("Coincident", 10, 2, 11, 1))
sketch4.addConstraint(Sketcher.Constraint("Coincident", 11, 2, 0, 1))
sketch4.addConstraint(Sketcher.Constraint("Vertical", 0))
sketch4.addConstraint(Sketcher.Constraint("Horizontal", 1))
sketch4.addConstraint(Sketcher.Constraint("Horizontal", 3))
sketch4.addConstraint(Sketcher.Constraint("Horizontal", 5))
sketch4.addConstraint(Sketcher.Constraint("Vertical", 6))
sketch4.addConstraint(Sketcher.Constraint("Horizontal", 7))
sketch4.addConstraint(Sketcher.Constraint("Horizontal", 9))
sketch4.addConstraint(Sketcher.Constraint("Horizontal", 11))
sketch4.addConstraint(Sketcher.Constraint("Symmetric", 0, 2, 6, 2, -1, 1))
sketch4.addConstraint(Sketcher.Constraint("Symmetric", 2, 2, 8, 2, -1, 1))
sketch4.addConstraint(Sketcher.Constraint("Symmetric", 4, 2, 10, 2, -1, 1))
sketch4.addConstraint(Sketcher.Constraint("Symmetric", 1, 2, 4, 2, -2))
sketch4.addConstraint(Sketcher.Constraint("Perpendicular", 2, 4))
sketch4.addConstraint(Sketcher.Constraint("Perpendicular", 4, 8))
sketch4.addConstraint(Sketcher.Constraint("Perpendicular", 8, 10))
sketch4.addConstraint(Sketcher.Constraint("Vertical", 3, 2, 8, 2))
sketch4.addConstraint(Sketcher.Constraint("DistanceY", 0, 2, 0, 1, Q("1500 mm")))
sketch4.addConstraint(Sketcher.Constraint("DistanceX", 0, 2, -1, 1, Q("1800 mm")))
sketch4.addConstraint(Sketcher.Constraint("DistanceY", 2, 2, -1, 1, Q("1500 mm")))
sketch4.addConstraint(Sketcher.Constraint("DistanceX", 1, 1, 1, 2, Q("428.679656 mm")))
pad4 = body.newObject("PartDesign::Pad", "Pad003")
pad4.Profile = sketch4
pad4.Length = 170

sketch5 = body.newObject("Sketcher::SketchObject", "Sketch004")
sketch5.AttachmentSupport = (doc.getObject("XY_Plane"), [""])
sketch5.MapMode = "FlatFace"
sketch5.AttachmentOffset = App.Placement(Vector(0, 0, 750), App.Rotation())
sketch5.addGeometry(Part.LineSegment(Vector(-600, 0, 0), Vector(-1800, 0, 0)), False)
sketch5.addGeometry(Part.LineSegment(Vector(-1800, 0, 0), Vector(-4580.224726, -850, 0)), False)
sketch5.addGeometry(Part.LineSegment(Vector(-4580.224726, -850, 0), Vector(-4580.224726, -1050, 0)), False)
sketch5.addGeometry(Part.LineSegment(Vector(-4580.224726, -1050, 0), Vector(-600, -1050, 0)), False)
sketch5.addGeometry(Part.LineSegment(Vector(-600, -1050, 0), Vector(-600, 0, 0)), False)
sketch5.addGeometry(Part.LineSegment(Vector(1800, 0, 0), Vector(600, 0, 0)), False)
sketch5.addGeometry(Part.LineSegment(Vector(600, 0, 0), Vector(600, -1050, 0)), False)
sketch5.addGeometry(Part.LineSegment(Vector(600, -1050, 0), Vector(4225.833025, -1050, 0)), False)
sketch5.addGeometry(Part.LineSegment(Vector(4225.833025, -1050, 0), Vector(4225.833025, -650, 0)), False)
sketch5.addGeometry(Part.LineSegment(Vector(4225.833025, -650, 0), Vector(1800, 0, 0)), False)
sketch5.addConstraint(Sketcher.Constraint("Coincident", 0, 2, 1, 1))
sketch5.addConstraint(Sketcher.Constraint("Coincident", 1, 2, 2, 1))
sketch5.addConstraint(Sketcher.Constraint("Coincident", 2, 2, 3, 1))
sketch5.addConstraint(Sketcher.Constraint("Coincident", 3, 2, 4, 1))
sketch5.addConstraint(Sketcher.Constraint("Coincident", 4, 2, 0, 1))
sketch5.addConstraint(Sketcher.Constraint("Coincident", 5, 2, 6, 1))
sketch5.addConstraint(Sketcher.Constraint("Coincident", 6, 2, 7, 1))
sketch5.addConstraint(Sketcher.Constraint("Coincident", 7, 2, 8, 1))
sketch5.addConstraint(Sketcher.Constraint("Coincident", 8, 2, 9, 1))
sketch5.addConstraint(Sketcher.Constraint("Coincident", 9, 2, 5, 1))
sketch5.addConstraint(Sketcher.Constraint("Horizontal", 0))
sketch5.addConstraint(Sketcher.Constraint("Vertical", 2))
sketch5.addConstraint(Sketcher.Constraint("Horizontal", 3))
sketch5.addConstraint(Sketcher.Constraint("Vertical", 4))
sketch5.addConstraint(Sketcher.Constraint("Horizontal", 5))
sketch5.addConstraint(Sketcher.Constraint("Vertical", 6))
sketch5.addConstraint(Sketcher.Constraint("Horizontal", 7))
sketch5.addConstraint(Sketcher.Constraint("Vertical", 8))
sketch5.addConstraint(Sketcher.Constraint("Symmetric", 4, 2, 5, 2, -1, 1))
sketch5.addConstraint(Sketcher.Constraint("Symmetric", 0, 2, 9, 2, -2))
sketch5.addConstraint(Sketcher.Constraint("Horizontal", 3, 2, 6, 2))
sketch5.addConstraint(Sketcher.Constraint("DistanceX", 0, 2, 0, 1, Q("1200 mm")))
sketch5.addConstraint(Sketcher.Constraint("DistanceY", 2, 2, 2, 1, Q("200 mm")))
sketch5.addConstraint(Sketcher.Constraint("DistanceY", 4, 1, 4, 2, Q("1050 mm")))
sketch5.addConstraint(Sketcher.Constraint("DistanceY", 8, 1, 8, 2, Q("400 mm")))
sketch5.addConstraint(Sketcher.Constraint("Angle", 1, Q("-163 deg")))
sketch5.addConstraint(Sketcher.Constraint("Angle", 9, Q("165 deg")))
sketch5.addConstraint(Sketcher.Constraint("DistanceX", 0, 2, -1, 1, Q("1800 mm")))
pad5 = body.newObject("PartDesign::Pad", "Pad004")
pad5.Profile = sketch5
pad5.Length = 1500
pad5.Reversed = True

sketch6 = body.newObject("Sketcher::SketchObject", "Sketch005")
sketch6.AttachmentSupport = (doc.getObject("XY_Plane"), [""])
sketch6.MapMode = "FlatFace"
sketch6.AttachmentOffset = App.Placement(Vector(0, 0, -750), App.Rotation())
sketch6.addGeometry(Part.LineSegment(Vector(4225.833025, -650, 0), Vector(1800, 0, 0)), False)
sketch6.addGeometry(Part.LineSegment(Vector(1800, 0, 0), Vector(1800, 160, 0)), False)
sketch6.addGeometry(Part.LineSegment(Vector(1800, 160, 0), Vector(4225.833025, -490, 0)), False)
sketch6.addGeometry(Part.LineSegment(Vector(4225.833025, -490, 0), Vector(4225.833025, -650, 0)), False)
sketch6.addGeometry(Part.LineSegment(Vector(-1800, 0, 0), Vector(-4580.224726, -850, 0)), False)
sketch6.addGeometry(Part.LineSegment(Vector(-4580.224726, -850, 0), Vector(-4580.224726, -690, 0)), False)
sketch6.addGeometry(Part.LineSegment(Vector(-4580.224726, -690, 0), Vector(-1800, 160, 0)), False)
sketch6.addGeometry(Part.LineSegment(Vector(-1800, 160, 0), Vector(-1800, 0, 0)), False)
sketch6.addConstraint(Sketcher.Constraint("Coincident", 0, 2, 1, 1))
sketch6.addConstraint(Sketcher.Constraint("Coincident", 1, 2, 2, 1))
sketch6.addConstraint(Sketcher.Constraint("Coincident", 2, 2, 3, 1))
sketch6.addConstraint(Sketcher.Constraint("Coincident", 3, 2, 0, 1))
sketch6.addConstraint(Sketcher.Constraint("Coincident", 4, 2, 5, 1))
sketch6.addConstraint(Sketcher.Constraint("Coincident", 5, 2, 6, 1))
sketch6.addConstraint(Sketcher.Constraint("Coincident", 6, 2, 7, 1))
sketch6.addConstraint(Sketcher.Constraint("Coincident", 7, 2, 4, 1))
sketch6.addConstraint(Sketcher.Constraint("Vertical", 1))
sketch6.addConstraint(Sketcher.Constraint("Vertical", 3))
sketch6.addConstraint(Sketcher.Constraint("Vertical", 5))
sketch6.addConstraint(Sketcher.Constraint("Vertical", 7))
sketch6.addConstraint(Sketcher.Constraint("Symmetric", 0, 2, 7, 2, -1, 1))
sketch6.addConstraint(Sketcher.Constraint("PointOnObject", 0, 2, -1))
sketch6.addConstraint(Sketcher.Constraint("Parallel", 0, 2))
sketch6.addConstraint(Sketcher.Constraint("Parallel", 4, 6))
sketch6.addConstraint(Sketcher.Constraint("Horizontal", 1, 2, 6, 2))
sketch6.addConstraint(Sketcher.Constraint("DistanceY", 1, 1, 1, 2, Q("160 mm")))
sketch6.addConstraint(Sketcher.Constraint("Angle", 0, Q("165 deg")))
sketch6.addConstraint(Sketcher.Constraint("Angle", 4, Q("-163 deg")))
sketch6.addConstraint(Sketcher.Constraint("DistanceX", -1, 1, 0, 2, Q("1800 mm")))
sketch6.addConstraint(Sketcher.Constraint("DistanceY", 2, 2, -1, 1, Q("490 mm")))
sketch6.addConstraint(Sketcher.Constraint("DistanceY", 4, 2, -1, 1, Q("850 mm")))
pad6 = body.newObject("PartDesign::Pad", "Pad005")
pad6.Profile = sketch6
pad6.Length = 80
doc.recompute()

mirrored = body.newObject("PartDesign::Mirrored", "Mirrored")
mirrored.Originals = [pad6]
mirrored.MirrorPlane = (doc.getObject("XY_Plane"), [""])
body.Tip = mirrored

sketch7 = body.newObject("Sketcher::SketchObject", "Sketch006")
sketch7.AttachmentSupport = (doc.getObject("YZ_Plane"), [""])
sketch7.MapMode = "FlatFace"
sketch7.AttachmentOffset = App.Placement(Vector(0, 0, -4580.224726), App.Rotation())
sketch7.addGeometry(Part.LineSegment(Vector(-1050, -950, 0), Vector(-850, -750, 0)), False)
sketch7.addGeometry(Part.LineSegment(Vector(-850, -750, 0), Vector(-850, 750, 0)), False)
sketch7.addGeometry(Part.LineSegment(Vector(-850, 750, 0), Vector(-1050, 950, 0)), False)
sketch7.addGeometry(Part.LineSegment(Vector(-1050, 950, 0), Vector(-1050, -950, 0)), False)
sketch7.addConstraint(Sketcher.Constraint("Coincident", 0, 2, 1, 1))
sketch7.addConstraint(Sketcher.Constraint("Coincident", 1, 2, 2, 1))
sketch7.addConstraint(Sketcher.Constraint("Coincident", 2, 2, 3, 1))
sketch7.addConstraint(Sketcher.Constraint("Coincident", 3, 2, 0, 1))
sketch7.addConstraint(Sketcher.Constraint("Vertical", 1))
sketch7.addConstraint(Sketcher.Constraint("Vertical", 3))
sketch7.addConstraint(Sketcher.Constraint("Perpendicular", 0, 2))
sketch7.addConstraint(Sketcher.Constraint("Equal", 0, 2))
sketch7.addConstraint(Sketcher.Constraint("DistanceY", 1, 1, 1, 2, Q("1500 mm")))
sketch7.addConstraint(Sketcher.Constraint("DistanceY", 3, 2, 3, 1, Q("1900 mm")))
sketch7.addConstraint(Sketcher.Constraint("DistanceX", 0, 2, -1, 1, Q("850 mm")))
sketch7.addConstraint(Sketcher.Constraint("DistanceY", 0, 2, -1, 1, Q("750 mm")))
pad7 = body.newObject("PartDesign::Pad", "Pad006")
pad7.Profile = sketch7
pad7.Length = 8806.057751

sketch8 = body.newObject("Sketcher::SketchObject", "Sketch007")
sketch8.AttachmentSupport = (doc.getObject("XY_Plane"), [""])
sketch8.MapMode = "FlatFace"
sketch8.AttachmentOffset = App.Placement(Vector(0, 0, 750), App.Rotation())
sketch8.addGeometry(Part.LineSegment(Vector(-600, -850, 0), Vector(-600, -1050, 0)), False)
sketch8.addGeometry(Part.LineSegment(Vector(-600, -1050, 0), Vector(600, -1050, 0)), False)
sketch8.addGeometry(Part.LineSegment(Vector(600, -1050, 0), Vector(600, -850, 0)), False)
sketch8.addGeometry(Part.LineSegment(Vector(600, -850, 0), Vector(-600, -850, 0)), False)
sketch8.addConstraint(Sketcher.Constraint("Coincident", 0, 2, 1, 1))
sketch8.addConstraint(Sketcher.Constraint("Coincident", 1, 2, 2, 1))
sketch8.addConstraint(Sketcher.Constraint("Coincident", 2, 2, 3, 1))
sketch8.addConstraint(Sketcher.Constraint("Coincident", 3, 2, 0, 1))
sketch8.addConstraint(Sketcher.Constraint("Vertical", 0))
sketch8.addConstraint(Sketcher.Constraint("Horizontal", 1))
sketch8.addConstraint(Sketcher.Constraint("Vertical", 2))
sketch8.addConstraint(Sketcher.Constraint("Horizontal", 3))
sketch8.addConstraint(Sketcher.Constraint("DistanceX", 1, 1, 1, 2, Q("1200 mm")))
sketch8.addConstraint(Sketcher.Constraint("DistanceY", 0, 2, 0, 1, Q("200 mm")))
sketch8.addConstraint(Sketcher.Constraint("DistanceX", 0, 2, -1, 1, Q("600 mm")))
sketch8.addConstraint(Sketcher.Constraint("DistanceY", 0, 2, -1, 1, Q("1050 mm")))
pocket1 = body.newObject("PartDesign::Pocket", "Pocket")
pocket1.Profile = sketch8
pocket1.Type = "ThroughAll"
pocket1.Midplane = True

doc.recompute()
